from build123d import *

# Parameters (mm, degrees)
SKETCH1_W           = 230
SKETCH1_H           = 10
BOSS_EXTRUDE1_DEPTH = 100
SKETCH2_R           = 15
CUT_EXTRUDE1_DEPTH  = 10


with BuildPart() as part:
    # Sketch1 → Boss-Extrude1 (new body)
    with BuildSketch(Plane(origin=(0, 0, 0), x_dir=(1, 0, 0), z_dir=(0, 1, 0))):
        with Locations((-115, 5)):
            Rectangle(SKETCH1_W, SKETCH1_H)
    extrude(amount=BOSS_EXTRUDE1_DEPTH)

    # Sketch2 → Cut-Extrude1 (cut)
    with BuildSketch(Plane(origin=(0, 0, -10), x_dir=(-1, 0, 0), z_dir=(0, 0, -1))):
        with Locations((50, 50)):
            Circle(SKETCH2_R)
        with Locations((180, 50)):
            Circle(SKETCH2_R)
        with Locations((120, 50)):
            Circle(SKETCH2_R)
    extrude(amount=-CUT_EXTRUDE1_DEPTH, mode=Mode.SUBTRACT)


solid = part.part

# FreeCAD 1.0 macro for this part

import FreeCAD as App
import Part
import Sketcher
Q = App.Units.Quantity

doc = App.newDocument("Part")
body = doc.addObject("PartDesign::Body", "Body")

sketch1 = doc.addObject("Sketcher::SketchObject", "Sketch")
body.addObject(sketch1)
sketch1.AttachmentSupport = (doc.XZ_Plane, [""])
sketch1.MapMode = "FlatFace"
sketch1.addGeometry([
    Part.LineSegment(App.Vector(-230, -10, 0), App.Vector(-230, 0, 0)),
    Part.LineSegment(App.Vector(-230, 0, 0), App.Vector(0, 0, 0)),
    Part.LineSegment(App.Vector(0, 0, 0), App.Vector(0, -10, 0)),
    Part.LineSegment(App.Vector(0, -10, 0), App.Vector(-230, -10, 0)),
], False)
sketch1.addConstraint([
    Sketcher.Constraint("Coincident", 0, 2, 1, 1),
    Sketcher.Constraint("Coincident", 1, 2, 2, 1),
    Sketcher.Constraint("Coincident", 2, 2, 3, 1),
    Sketcher.Constraint("Coincident", 3, 2, 0, 1),
    Sketcher.Constraint("Vertical", 0),
    Sketcher.Constraint("Horizontal", 1),
    Sketcher.Constraint("Vertical", 2),
    Sketcher.Constraint("Horizontal", 3),
    Sketcher.Constraint("Coincident", 1, 2, -1, 1),
    Sketcher.Constraint("DistanceX", 1, 1, 1, 2, Q("230 mm")),
    Sketcher.Constraint("DistanceY", 0, 1, 0, 2, Q("10 mm")),
])
pad1 = doc.addObject("PartDesign::Pad", "Pad")
body.addObject(pad1)
pad1.Profile = sketch1
pad1.Length = 100
pad1.Reversed = True

sketch2 = doc.addObject("Sketcher::SketchObject", "Sketch001")
body.addObject(sketch2)
sketch2.AttachmentSupport = (doc.XY_Plane, [""])
sketch2.MapMode = "FlatFace"
sketch2.AttachmentOffset = App.Placement(App.Vector(0, 0, -10), App.Rotation())
sketch2.addGeometry([
    Part.Circle(App.Vector(-50, 50, 0), App.Vector(0, 0, 1), 15),
    Part.Circle(App.Vector(-180, 50, 0), App.Vector(0, 0, 1), 15),
    Part.Circle(App.Vector(-120, 50, 0), App.Vector(0, 0, 1), 15),
], False)
sketch2.addConstraint([
    Sketcher.Constraint("Equal", 0, 1),
    Sketcher.Constraint("Equal", 1, 2),
    Sketcher.Constraint("Horizontal", 0, 3, 1, 3),
    Sketcher.Constraint("Horizontal", 1, 3, 2, 3),
    Sketcher.Constraint("Diameter", 0, Q("30 mm")),
    Sketcher.Constraint("DistanceX", 0, 3, -1, 1, Q("50 mm")),
    Sketcher.Constraint("DistanceY", -1, 1, 0, 3, Q("50 mm")),
    Sketcher.Constraint("DistanceX", 1, 3, -1, 1, Q("180 mm")),
    Sketcher.Constraint("DistanceX", 2, 3, -1, 1, Q("120 mm")),
])
pocket1 = doc.addObject("PartDesign::Pocket", "Pocket")
body.addObject(pocket1)
pocket1.Profile = sketch2
pocket1.Length = 10
pocket1.Reversed = True

doc.recompute()
